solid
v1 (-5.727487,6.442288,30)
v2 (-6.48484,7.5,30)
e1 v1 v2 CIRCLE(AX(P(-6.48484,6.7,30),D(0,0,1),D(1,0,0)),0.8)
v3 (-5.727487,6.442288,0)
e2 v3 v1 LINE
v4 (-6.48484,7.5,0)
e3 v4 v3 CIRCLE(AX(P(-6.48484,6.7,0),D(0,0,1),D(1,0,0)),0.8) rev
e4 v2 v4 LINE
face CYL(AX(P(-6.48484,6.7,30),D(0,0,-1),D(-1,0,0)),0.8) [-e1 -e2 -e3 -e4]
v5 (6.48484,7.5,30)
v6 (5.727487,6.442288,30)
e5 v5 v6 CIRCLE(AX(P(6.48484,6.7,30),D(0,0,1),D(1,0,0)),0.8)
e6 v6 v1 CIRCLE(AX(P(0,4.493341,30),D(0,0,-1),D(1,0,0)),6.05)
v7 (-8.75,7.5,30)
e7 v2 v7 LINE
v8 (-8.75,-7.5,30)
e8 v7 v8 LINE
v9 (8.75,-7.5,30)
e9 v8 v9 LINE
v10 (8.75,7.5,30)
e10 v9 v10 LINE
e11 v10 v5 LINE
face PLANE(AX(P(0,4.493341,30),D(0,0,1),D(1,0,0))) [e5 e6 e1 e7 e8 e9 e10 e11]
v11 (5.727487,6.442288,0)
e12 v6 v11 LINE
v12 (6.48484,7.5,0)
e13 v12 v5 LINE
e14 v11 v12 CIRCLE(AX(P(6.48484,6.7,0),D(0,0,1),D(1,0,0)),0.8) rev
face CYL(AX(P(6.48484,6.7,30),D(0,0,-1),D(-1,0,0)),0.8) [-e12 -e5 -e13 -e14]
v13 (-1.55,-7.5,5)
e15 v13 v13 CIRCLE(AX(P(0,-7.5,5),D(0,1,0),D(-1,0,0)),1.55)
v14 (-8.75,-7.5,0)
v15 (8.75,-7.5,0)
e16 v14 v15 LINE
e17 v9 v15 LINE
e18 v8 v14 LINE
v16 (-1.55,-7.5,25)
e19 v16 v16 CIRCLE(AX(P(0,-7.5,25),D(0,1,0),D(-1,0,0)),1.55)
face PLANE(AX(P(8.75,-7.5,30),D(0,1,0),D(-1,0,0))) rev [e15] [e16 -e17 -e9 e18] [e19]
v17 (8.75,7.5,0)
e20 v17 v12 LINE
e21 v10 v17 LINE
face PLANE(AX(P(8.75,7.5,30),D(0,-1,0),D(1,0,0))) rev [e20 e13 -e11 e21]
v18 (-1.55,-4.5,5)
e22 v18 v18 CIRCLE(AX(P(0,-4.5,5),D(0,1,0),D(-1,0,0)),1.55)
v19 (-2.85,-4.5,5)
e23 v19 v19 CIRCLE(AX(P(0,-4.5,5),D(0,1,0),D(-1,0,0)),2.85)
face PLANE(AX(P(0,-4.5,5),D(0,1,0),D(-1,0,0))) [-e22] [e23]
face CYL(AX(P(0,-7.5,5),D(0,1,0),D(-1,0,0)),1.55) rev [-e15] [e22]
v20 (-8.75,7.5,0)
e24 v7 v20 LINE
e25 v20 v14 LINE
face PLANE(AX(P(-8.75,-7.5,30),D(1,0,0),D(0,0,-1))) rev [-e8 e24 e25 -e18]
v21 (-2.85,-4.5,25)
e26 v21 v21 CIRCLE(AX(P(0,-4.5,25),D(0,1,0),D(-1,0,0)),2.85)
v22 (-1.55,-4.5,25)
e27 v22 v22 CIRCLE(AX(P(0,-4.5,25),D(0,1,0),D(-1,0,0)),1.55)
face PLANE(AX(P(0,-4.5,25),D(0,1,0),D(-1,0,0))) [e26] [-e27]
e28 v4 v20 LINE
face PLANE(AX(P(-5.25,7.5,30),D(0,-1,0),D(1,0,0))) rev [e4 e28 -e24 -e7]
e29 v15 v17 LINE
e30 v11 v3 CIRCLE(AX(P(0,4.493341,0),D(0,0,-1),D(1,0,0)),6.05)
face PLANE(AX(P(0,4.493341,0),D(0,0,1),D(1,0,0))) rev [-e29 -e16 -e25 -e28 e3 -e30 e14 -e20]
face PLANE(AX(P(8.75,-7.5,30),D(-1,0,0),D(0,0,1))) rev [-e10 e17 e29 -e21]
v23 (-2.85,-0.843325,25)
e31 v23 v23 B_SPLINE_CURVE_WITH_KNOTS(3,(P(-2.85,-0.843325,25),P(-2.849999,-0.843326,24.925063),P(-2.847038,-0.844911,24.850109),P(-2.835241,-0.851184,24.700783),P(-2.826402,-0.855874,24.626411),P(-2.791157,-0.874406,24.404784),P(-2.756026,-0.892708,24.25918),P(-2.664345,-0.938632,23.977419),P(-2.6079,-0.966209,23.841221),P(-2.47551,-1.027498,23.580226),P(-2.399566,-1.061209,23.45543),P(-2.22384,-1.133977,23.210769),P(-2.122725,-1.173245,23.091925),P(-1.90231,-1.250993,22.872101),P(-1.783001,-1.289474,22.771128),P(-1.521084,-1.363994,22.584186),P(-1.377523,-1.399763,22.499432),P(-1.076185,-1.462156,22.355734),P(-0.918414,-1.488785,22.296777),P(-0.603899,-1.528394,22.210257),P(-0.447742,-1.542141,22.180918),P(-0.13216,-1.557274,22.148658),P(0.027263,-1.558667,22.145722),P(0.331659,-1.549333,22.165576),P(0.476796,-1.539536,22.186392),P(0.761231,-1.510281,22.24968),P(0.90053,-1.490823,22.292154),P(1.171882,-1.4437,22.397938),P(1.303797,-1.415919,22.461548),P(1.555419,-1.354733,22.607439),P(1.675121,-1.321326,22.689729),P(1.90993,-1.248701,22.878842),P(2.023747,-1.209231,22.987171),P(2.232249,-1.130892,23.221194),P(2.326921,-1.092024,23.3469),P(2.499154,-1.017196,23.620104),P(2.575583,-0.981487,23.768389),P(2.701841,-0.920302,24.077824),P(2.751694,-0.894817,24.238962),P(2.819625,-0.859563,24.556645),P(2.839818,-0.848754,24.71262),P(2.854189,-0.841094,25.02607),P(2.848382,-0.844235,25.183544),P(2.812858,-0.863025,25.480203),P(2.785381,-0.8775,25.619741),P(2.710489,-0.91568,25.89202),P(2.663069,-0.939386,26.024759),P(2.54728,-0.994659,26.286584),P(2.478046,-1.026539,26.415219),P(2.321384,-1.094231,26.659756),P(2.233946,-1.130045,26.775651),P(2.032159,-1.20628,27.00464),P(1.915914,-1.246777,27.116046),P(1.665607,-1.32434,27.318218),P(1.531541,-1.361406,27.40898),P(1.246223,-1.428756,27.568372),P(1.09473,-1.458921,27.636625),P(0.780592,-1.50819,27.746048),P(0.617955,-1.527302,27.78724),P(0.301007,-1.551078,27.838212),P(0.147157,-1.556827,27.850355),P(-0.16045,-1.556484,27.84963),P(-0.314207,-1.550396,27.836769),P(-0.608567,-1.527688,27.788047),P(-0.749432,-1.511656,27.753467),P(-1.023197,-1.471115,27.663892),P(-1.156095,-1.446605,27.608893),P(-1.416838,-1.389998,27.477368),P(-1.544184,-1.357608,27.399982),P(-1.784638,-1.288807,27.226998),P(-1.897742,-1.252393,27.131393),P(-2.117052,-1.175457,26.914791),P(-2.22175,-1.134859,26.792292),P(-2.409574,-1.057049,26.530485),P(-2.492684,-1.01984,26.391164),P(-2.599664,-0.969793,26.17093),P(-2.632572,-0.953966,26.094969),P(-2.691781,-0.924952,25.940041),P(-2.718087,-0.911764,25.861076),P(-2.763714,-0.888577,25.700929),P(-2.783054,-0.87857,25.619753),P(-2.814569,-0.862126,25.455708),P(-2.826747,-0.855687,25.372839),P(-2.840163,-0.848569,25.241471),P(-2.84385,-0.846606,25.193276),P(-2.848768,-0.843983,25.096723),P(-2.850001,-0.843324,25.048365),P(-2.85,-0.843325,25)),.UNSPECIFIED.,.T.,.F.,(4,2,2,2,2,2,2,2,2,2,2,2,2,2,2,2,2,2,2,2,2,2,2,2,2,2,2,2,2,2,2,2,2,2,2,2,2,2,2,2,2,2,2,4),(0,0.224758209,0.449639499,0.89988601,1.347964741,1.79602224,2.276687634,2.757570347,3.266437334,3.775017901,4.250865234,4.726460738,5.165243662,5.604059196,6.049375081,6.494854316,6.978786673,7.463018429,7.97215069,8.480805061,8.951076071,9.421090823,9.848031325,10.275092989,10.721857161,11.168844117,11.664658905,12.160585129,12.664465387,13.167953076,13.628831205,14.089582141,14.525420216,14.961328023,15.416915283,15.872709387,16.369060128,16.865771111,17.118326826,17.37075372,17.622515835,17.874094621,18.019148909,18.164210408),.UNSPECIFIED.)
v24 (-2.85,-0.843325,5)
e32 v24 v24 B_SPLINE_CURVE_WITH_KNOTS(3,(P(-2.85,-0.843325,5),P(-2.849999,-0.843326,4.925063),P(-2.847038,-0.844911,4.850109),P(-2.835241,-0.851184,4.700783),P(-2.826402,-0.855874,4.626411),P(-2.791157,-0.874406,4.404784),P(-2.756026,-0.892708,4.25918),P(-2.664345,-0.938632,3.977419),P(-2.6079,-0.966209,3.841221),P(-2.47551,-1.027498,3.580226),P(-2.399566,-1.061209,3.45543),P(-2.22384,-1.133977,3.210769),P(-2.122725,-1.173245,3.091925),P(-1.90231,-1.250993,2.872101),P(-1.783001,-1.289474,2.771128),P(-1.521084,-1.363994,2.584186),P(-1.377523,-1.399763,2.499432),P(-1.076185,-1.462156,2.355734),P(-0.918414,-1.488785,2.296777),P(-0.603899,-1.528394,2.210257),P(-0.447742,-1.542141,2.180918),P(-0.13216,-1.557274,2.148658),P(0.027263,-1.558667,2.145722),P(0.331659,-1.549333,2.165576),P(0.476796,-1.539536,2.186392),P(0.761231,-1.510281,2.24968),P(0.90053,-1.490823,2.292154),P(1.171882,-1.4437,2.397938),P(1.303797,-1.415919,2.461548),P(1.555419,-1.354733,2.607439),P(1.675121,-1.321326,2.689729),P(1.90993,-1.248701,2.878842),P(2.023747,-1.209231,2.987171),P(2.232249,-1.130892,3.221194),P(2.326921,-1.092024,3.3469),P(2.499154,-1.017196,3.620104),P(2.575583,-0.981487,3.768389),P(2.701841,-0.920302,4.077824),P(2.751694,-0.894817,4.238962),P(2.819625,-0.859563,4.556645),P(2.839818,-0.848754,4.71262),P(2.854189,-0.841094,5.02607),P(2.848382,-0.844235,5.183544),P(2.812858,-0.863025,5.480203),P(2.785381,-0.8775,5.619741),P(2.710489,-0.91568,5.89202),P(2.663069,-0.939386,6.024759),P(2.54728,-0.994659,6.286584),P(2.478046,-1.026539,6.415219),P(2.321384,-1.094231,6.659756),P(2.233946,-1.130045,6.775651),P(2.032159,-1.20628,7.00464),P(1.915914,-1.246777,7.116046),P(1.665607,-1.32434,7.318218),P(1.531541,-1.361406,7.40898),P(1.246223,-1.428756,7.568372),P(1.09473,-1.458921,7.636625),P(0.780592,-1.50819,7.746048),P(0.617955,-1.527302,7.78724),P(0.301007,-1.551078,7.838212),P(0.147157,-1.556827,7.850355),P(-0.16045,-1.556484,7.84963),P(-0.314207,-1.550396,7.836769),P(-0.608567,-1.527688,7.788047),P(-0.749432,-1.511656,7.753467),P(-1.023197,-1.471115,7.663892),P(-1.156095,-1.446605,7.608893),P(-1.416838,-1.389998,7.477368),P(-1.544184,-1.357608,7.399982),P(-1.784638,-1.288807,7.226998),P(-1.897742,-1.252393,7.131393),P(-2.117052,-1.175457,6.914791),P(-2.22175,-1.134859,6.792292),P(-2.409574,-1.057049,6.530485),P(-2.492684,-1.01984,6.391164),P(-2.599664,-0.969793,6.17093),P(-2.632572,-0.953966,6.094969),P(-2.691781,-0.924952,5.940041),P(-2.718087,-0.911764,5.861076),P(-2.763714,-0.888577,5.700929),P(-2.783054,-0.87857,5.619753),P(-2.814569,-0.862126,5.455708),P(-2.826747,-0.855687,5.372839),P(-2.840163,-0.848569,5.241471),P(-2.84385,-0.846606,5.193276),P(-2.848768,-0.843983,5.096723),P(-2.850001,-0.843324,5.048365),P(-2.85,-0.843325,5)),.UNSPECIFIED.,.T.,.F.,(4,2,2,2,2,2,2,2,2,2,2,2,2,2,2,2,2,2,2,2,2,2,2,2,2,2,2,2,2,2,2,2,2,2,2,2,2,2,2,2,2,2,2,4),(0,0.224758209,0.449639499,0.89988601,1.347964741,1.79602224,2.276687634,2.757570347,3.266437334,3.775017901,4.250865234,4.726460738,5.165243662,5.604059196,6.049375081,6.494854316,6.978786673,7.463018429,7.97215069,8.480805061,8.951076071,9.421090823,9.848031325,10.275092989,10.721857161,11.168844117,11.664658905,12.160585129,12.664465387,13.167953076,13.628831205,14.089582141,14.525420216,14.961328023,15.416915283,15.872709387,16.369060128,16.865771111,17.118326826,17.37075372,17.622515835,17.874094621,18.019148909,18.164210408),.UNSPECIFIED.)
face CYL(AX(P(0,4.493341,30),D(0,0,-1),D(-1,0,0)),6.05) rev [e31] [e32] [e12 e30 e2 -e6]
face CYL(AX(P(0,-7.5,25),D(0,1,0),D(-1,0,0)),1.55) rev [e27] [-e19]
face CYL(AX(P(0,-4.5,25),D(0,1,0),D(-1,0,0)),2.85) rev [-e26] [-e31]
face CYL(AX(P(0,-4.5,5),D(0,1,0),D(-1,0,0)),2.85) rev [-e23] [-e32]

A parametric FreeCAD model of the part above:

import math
import FreeCAD as App
import Part
import Sketcher

V = App.Vector
Q = App.Units.Quantity


def edges_at(feature, points):
    """Names of the edges that pass closest to the given points."""
    edges = feature.Shape.Edges
    near = lambda p: min(range(len(edges)), key=lambda i: edges[i].distToShape(Part.Vertex(*p))[0])
    return sorted({f"Edge{near(p) + 1}" for p in points})

doc = App.newDocument("Part")
body = doc.addObject("PartDesign::Body", "Body")

# Sketch on XY plane
sketch1 = body.newObject("Sketcher::SketchObject", "Sketch")
sketch1.AttachmentSupport = (doc.getObject("XY_Plane"), [""])
sketch1.MapMode = "FlatFace"
sketch1.addGeometry([
    Part.LineSegment(V(-5.2, 7.5, 0), V(-8.8, 7.5, 0)),  # 0
    Part.LineSegment(V(-8.8, 7.5, 0), V(-8.8, -7.5, 0)),  # 1
    Part.LineSegment(V(-8.8, -7.5, 0), V(8.8, -7.5, 0)),  # 2
    Part.LineSegment(V(8.8, -7.5, 0), V(8.8, 7.5, 0)),  # 3
    Part.LineSegment(V(8.8, 7.5, 0), V(5.2, 7.5, 0)),  # 4
    Part.ArcOfCircle(Part.Circle(V(0, 4.5, 0), V(0, 0, 1), 6), math.radians(150), math.radians(390)),  # 5
], False)
sketch1.addConstraint([
    Sketcher.Constraint("Coincident", 0, 2, 1, 1),
    Sketcher.Constraint("Coincident", 1, 2, 2, 1),
    Sketcher.Constraint("Coincident", 2, 2, 3, 1),
    Sketcher.Constraint("Coincident", 3, 2, 4, 1),
    Sketcher.Constraint("Coincident", 4, 2, 5, 2),
    Sketcher.Constraint("Coincident", 5, 1, 0, 1),
    Sketcher.Constraint("Horizontal", 0),
    Sketcher.Constraint("Vertical", 1),
    Sketcher.Constraint("Horizontal", 2),
    Sketcher.Constraint("Vertical", 3),
    Sketcher.Constraint("Horizontal", 4),
    Sketcher.Constraint("Symmetric", 0, 2, 2, 2, -1, 1),
    Sketcher.Constraint("Symmetric", 4, 2, 5, 1, -2),
    Sketcher.Constraint("DistanceY", 1, 2, 1, 1, Q("15 mm")),
    Sketcher.Constraint("Radius", 5, Q("6.05 mm")),
    Sketcher.Constraint("DistanceX", 0, 2, 0, 1, Q("3.5 mm")),
    Sketcher.Constraint("DistanceX", 2, 1, 2, 2, Q("17.5 mm")),
])
pad1 = body.newObject("PartDesign::Pad", "Pad")
pad1.Profile = sketch1
pad1.Length = 30
doc.recompute()

fillet = body.newObject("PartDesign::Fillet", "Fillet")
fillet.Base = (pad1, edges_at(pad1, [(-5.25, 7.5, 15), (5.25, 7.5, 15)]))
fillet.Radius = 0.8

# Sketch on XZ plane
sketch2 = body.newObject("Sketcher::SketchObject", "Sketch001")
sketch2.AttachmentSupport = (doc.getObject("XZ_Plane"), [""])
sketch2.MapMode = "FlatFace"
sketch2.AttachmentOffset = App.Placement(V(0, 0, -7.5), App.Rotation())
sketch2.addGeometry([
    Part.Circle(V(0, 5, 0), V(0, 0, 1), 2.9),
    Part.Circle(V(0, 25, 0), V(0, 0, 1), 2.9),
], False)
sketch2.addConstraint([
    Sketcher.Constraint("Equal", 0, 1),
    Sketcher.Constraint("PointOnObject", 0, 3, -2),
    Sketcher.Constraint("PointOnObject", 1, 3, -2),
    Sketcher.Constraint("Diameter", 0, Q("5.7 mm")),
    Sketcher.Constraint("DistanceY", -1, 1, 0, 3, Q("5 mm")),
    Sketcher.Constraint("DistanceY", -1, 1, 1, 3, Q("25 mm")),
])
pocket1 = body.newObject("PartDesign::Pocket", "Pocket")
pocket1.Profile = sketch2
pocket1.Length = 12
pocket1.Reversed = True

# Sketch on XZ plane
sketch3 = body.newObject("Sketcher::SketchObject", "Sketch002")
sketch3.AttachmentSupport = (doc.getObject("XZ_Plane"), [""])
sketch3.MapMode = "FlatFace"
sketch3.AttachmentOffset = App.Placement(V(0, 0, -7.5), App.Rotation())
sketch3.addGeometry([
    Part.Circle(V(0, 5, 0), V(0, 0, 1), 1.6),
    Part.Circle(V(0, 25, 0), V(0, 0, 1), 1.6),
], False)
sketch3.addConstraint([
    Sketcher.Constraint("Equal", 0, 1),
    Sketcher.Constraint("PointOnObject", 0, 3, -2),
    Sketcher.Constraint("PointOnObject", 1, 3, -2),
    Sketcher.Constraint("Diameter", 0, Q("3.1 mm")),
    Sketcher.Constraint("DistanceY", -1, 1, 0, 3, Q("5 mm")),
    Sketcher.Constraint("DistanceY", -1, 1, 1, 3, Q("25 mm")),
])
pocket2 = body.newObject("PartDesign::Pocket", "Pocket001")
pocket2.Profile = sketch3
pocket2.Type = "ThroughAll"
pocket2.Reversed = True

doc.recompute()
